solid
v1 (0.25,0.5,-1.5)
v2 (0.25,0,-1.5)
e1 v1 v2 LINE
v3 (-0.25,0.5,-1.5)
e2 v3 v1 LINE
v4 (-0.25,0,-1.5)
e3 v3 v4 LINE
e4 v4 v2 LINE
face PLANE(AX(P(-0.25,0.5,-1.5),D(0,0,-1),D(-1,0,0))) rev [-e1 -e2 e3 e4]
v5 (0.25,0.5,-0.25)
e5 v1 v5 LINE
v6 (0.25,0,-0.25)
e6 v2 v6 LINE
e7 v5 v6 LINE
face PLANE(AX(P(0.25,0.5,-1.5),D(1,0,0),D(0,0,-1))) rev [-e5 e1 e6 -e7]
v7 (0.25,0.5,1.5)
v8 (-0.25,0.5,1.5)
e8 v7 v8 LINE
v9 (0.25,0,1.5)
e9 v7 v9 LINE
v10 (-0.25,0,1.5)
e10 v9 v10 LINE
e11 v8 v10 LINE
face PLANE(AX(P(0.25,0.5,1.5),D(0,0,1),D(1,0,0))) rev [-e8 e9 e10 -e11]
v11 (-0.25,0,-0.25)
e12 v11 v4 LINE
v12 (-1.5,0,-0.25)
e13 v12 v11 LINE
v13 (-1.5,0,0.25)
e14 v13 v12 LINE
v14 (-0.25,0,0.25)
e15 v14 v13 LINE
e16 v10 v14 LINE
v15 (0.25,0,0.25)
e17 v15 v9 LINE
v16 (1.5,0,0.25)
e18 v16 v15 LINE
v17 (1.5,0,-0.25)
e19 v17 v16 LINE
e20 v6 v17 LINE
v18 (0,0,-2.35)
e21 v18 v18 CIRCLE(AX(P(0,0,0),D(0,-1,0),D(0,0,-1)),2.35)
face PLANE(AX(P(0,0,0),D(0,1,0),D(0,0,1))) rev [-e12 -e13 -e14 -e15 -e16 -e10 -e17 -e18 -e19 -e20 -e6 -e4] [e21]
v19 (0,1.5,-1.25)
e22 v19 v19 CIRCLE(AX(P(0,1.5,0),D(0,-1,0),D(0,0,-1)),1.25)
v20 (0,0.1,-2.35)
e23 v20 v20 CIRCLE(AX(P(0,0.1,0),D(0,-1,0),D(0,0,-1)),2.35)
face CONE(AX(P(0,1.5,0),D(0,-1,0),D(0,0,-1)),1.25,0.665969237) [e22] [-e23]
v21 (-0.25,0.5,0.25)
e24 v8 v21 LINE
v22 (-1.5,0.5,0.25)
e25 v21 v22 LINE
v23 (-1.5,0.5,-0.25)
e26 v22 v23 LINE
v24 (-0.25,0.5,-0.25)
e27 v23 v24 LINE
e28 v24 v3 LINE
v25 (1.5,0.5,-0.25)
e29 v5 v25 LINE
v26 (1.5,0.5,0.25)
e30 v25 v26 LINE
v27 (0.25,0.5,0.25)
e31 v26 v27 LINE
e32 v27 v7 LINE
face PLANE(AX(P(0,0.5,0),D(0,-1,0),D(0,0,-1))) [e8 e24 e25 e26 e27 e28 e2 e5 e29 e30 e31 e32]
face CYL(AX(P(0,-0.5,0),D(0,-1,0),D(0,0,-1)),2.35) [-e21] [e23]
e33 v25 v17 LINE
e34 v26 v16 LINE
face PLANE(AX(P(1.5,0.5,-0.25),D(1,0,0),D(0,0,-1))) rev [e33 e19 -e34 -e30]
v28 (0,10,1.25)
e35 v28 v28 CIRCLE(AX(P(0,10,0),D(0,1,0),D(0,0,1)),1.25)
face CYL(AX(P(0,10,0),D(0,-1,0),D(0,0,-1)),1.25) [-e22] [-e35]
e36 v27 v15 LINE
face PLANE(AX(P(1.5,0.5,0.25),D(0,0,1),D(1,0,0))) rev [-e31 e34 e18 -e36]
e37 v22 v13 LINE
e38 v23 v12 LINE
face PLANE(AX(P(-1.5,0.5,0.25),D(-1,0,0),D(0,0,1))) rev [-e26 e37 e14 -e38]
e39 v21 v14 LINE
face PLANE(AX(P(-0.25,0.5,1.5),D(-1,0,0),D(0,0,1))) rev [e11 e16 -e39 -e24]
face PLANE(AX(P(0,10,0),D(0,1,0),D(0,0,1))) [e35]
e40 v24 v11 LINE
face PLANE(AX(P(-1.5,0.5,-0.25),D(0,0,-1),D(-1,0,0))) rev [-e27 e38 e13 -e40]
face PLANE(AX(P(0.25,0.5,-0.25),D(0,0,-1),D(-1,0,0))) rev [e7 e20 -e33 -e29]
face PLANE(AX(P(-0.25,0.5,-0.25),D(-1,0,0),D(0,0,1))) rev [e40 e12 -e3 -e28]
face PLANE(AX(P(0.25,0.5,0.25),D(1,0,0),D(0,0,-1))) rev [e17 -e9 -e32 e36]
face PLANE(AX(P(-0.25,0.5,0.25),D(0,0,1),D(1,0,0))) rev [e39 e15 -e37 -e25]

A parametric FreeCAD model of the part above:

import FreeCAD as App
import Part
import Sketcher
Q = App.Units.Quantity


def add_polygon(sketch, points):
    """Adds a closed chain of lines whose ends are joined by coincident constraints."""
    first, n = sketch.GeometryCount, len(points)
    for a, b in zip(points, points[1:] + points[:1]):
        sketch.addGeometry(Part.LineSegment(App.Vector(*a, 0), App.Vector(*b, 0)), False)
    for i in range(n):
        sketch.addConstraint(Sketcher.Constraint("Coincident", first + i, 2, first + (i + 1) % n, 1))

doc = App.newDocument("Part")
body = doc.addObject("PartDesign::Body", "Body")

# Sketch on XZ plane
sketch1 = body.newObject("Sketcher::SketchObject", "Sketch")
sketch1.AttachmentSupport = (doc.getObject("XZ_Plane"), [""])
sketch1.MapMode = "FlatFace"
sketch1.addGeometry(Part.Circle(App.Vector(0, 0, 0), App.Vector(0, 0, 1), 1.2), False)
sketch1.addConstraint(Sketcher.Constraint("Coincident", 0, 3, -1, 1))
sketch1.addConstraint(Sketcher.Constraint("Diameter", 0, Q("2.5 mm")))
pad1 = body.newObject("PartDesign::Pad", "Pad")
pad1.Profile = sketch1
pad1.Length = 10
pad1.Reversed = True

# Sketch on YZ plane
sketch2 = body.newObject("Sketcher::SketchObject", "Sketch001")
sketch2.AttachmentSupport = (doc.getObject("YZ_Plane"), [""])
sketch2.MapMode = "FlatFace"
add_polygon(sketch2, [(0, 0), (1.5, 0), (1.5, 1.25), (0.1, 2.35), (0, 2.35)])  # lines 0-4
sketch2.addConstraint(Sketcher.Constraint("Horizontal", 0))
sketch2.addConstraint(Sketcher.Constraint("Vertical", 1))
sketch2.addConstraint(Sketcher.Constraint("Horizontal", 3))
sketch2.addConstraint(Sketcher.Constraint("Vertical", 4))
sketch2.addConstraint(Sketcher.Constraint("Coincident", 4, 2, -1, 1))
sketch2.addConstraint(Sketcher.Constraint("DistanceX", 0, 1, 0, 2, Q("1.5 mm")))
sketch2.addConstraint(Sketcher.Constraint("DistanceX", 3, 2, 3, 1, Q("0.1 mm")))
sketch2.addConstraint(Sketcher.Constraint("DistanceY", 1, 1, 1, 2, Q("1.25 mm")))
sketch2.addConstraint(Sketcher.Constraint("DistanceY", 4, 2, 4, 1, Q("2.35 mm")))
revolution = body.newObject("PartDesign::Revolution", "Revolution")
revolution.Profile = sketch2
revolution.ReferenceAxis = (sketch2, ["H_Axis"])
revolution.Angle = 360

# Sketch on XZ plane
sketch3 = body.newObject("Sketcher::SketchObject", "Sketch002")
sketch3.AttachmentSupport = (doc.getObject("XZ_Plane"), [""])
sketch3.MapMode = "FlatFace"
add_polygon(sketch3, [(-1.5, -0.2), (-0.2, -0.2), (-0.2, -1.5), (0.2, -1.5), (0.2, -0.2), (1.5, -0.2), (1.5, 0.2), (0.2, 0.2), (0.2, 1.5), (-0.2, 1.5), (-0.2, 0.2), (-1.5, 0.2)])  # lines 0-11
sketch3.addConstraint(Sketcher.Constraint("Horizontal", 0))
sketch3.addConstraint(Sketcher.Constraint("Vertical", 1))
sketch3.addConstraint(Sketcher.Constraint("Horizontal", 2))
sketch3.addConstraint(Sketcher.Constraint("Vertical", 3))
sketch3.addConstraint(Sketcher.Constraint("Horizontal", 4))
sketch3.addConstraint(Sketcher.Constraint("Vertical", 5))
sketch3.addConstraint(Sketcher.Constraint("Horizontal", 6))
sketch3.addConstraint(Sketcher.Constraint("Vertical", 7))
sketch3.addConstraint(Sketcher.Constraint("Horizontal", 8))
sketch3.addConstraint(Sketcher.Constraint("Vertical", 9))
sketch3.addConstraint(Sketcher.Constraint("Horizontal", 10))
sketch3.addConstraint(Sketcher.Constraint("Vertical", 11))
sketch3.addConstraint(Sketcher.Constraint("Symmetric", 0, 2, 6, 2, -1, 1))
sketch3.addConstraint(Sketcher.Constraint("Symmetric", 2, 2, 8, 2, -1, 1))
sketch3.addConstraint(Sketcher.Constraint("Symmetric", 4, 2, 10, 2, -1, 1))
sketch3.addConstraint(Sketcher.Constraint("Symmetric", 0, 2, 3, 2, -2))
sketch3.addConstraint(Sketcher.Constraint("Equal", 10, 1))
sketch3.addConstraint(Sketcher.Constraint("Equal", 8, 5))
sketch3.addConstraint(Sketcher.Constraint("DistanceX", 2, 1, 2, 2, Q("0.5 mm")))
sketch3.addConstraint(Sketcher.Constraint("DistanceX", 0, 1, 0, 2, Q("1.25 mm")))
pocket1 = body.newObject("PartDesign::Pocket", "Pocket")
pocket1.Profile = sketch3
pocket1.Length = 0.5

doc.recompute()
